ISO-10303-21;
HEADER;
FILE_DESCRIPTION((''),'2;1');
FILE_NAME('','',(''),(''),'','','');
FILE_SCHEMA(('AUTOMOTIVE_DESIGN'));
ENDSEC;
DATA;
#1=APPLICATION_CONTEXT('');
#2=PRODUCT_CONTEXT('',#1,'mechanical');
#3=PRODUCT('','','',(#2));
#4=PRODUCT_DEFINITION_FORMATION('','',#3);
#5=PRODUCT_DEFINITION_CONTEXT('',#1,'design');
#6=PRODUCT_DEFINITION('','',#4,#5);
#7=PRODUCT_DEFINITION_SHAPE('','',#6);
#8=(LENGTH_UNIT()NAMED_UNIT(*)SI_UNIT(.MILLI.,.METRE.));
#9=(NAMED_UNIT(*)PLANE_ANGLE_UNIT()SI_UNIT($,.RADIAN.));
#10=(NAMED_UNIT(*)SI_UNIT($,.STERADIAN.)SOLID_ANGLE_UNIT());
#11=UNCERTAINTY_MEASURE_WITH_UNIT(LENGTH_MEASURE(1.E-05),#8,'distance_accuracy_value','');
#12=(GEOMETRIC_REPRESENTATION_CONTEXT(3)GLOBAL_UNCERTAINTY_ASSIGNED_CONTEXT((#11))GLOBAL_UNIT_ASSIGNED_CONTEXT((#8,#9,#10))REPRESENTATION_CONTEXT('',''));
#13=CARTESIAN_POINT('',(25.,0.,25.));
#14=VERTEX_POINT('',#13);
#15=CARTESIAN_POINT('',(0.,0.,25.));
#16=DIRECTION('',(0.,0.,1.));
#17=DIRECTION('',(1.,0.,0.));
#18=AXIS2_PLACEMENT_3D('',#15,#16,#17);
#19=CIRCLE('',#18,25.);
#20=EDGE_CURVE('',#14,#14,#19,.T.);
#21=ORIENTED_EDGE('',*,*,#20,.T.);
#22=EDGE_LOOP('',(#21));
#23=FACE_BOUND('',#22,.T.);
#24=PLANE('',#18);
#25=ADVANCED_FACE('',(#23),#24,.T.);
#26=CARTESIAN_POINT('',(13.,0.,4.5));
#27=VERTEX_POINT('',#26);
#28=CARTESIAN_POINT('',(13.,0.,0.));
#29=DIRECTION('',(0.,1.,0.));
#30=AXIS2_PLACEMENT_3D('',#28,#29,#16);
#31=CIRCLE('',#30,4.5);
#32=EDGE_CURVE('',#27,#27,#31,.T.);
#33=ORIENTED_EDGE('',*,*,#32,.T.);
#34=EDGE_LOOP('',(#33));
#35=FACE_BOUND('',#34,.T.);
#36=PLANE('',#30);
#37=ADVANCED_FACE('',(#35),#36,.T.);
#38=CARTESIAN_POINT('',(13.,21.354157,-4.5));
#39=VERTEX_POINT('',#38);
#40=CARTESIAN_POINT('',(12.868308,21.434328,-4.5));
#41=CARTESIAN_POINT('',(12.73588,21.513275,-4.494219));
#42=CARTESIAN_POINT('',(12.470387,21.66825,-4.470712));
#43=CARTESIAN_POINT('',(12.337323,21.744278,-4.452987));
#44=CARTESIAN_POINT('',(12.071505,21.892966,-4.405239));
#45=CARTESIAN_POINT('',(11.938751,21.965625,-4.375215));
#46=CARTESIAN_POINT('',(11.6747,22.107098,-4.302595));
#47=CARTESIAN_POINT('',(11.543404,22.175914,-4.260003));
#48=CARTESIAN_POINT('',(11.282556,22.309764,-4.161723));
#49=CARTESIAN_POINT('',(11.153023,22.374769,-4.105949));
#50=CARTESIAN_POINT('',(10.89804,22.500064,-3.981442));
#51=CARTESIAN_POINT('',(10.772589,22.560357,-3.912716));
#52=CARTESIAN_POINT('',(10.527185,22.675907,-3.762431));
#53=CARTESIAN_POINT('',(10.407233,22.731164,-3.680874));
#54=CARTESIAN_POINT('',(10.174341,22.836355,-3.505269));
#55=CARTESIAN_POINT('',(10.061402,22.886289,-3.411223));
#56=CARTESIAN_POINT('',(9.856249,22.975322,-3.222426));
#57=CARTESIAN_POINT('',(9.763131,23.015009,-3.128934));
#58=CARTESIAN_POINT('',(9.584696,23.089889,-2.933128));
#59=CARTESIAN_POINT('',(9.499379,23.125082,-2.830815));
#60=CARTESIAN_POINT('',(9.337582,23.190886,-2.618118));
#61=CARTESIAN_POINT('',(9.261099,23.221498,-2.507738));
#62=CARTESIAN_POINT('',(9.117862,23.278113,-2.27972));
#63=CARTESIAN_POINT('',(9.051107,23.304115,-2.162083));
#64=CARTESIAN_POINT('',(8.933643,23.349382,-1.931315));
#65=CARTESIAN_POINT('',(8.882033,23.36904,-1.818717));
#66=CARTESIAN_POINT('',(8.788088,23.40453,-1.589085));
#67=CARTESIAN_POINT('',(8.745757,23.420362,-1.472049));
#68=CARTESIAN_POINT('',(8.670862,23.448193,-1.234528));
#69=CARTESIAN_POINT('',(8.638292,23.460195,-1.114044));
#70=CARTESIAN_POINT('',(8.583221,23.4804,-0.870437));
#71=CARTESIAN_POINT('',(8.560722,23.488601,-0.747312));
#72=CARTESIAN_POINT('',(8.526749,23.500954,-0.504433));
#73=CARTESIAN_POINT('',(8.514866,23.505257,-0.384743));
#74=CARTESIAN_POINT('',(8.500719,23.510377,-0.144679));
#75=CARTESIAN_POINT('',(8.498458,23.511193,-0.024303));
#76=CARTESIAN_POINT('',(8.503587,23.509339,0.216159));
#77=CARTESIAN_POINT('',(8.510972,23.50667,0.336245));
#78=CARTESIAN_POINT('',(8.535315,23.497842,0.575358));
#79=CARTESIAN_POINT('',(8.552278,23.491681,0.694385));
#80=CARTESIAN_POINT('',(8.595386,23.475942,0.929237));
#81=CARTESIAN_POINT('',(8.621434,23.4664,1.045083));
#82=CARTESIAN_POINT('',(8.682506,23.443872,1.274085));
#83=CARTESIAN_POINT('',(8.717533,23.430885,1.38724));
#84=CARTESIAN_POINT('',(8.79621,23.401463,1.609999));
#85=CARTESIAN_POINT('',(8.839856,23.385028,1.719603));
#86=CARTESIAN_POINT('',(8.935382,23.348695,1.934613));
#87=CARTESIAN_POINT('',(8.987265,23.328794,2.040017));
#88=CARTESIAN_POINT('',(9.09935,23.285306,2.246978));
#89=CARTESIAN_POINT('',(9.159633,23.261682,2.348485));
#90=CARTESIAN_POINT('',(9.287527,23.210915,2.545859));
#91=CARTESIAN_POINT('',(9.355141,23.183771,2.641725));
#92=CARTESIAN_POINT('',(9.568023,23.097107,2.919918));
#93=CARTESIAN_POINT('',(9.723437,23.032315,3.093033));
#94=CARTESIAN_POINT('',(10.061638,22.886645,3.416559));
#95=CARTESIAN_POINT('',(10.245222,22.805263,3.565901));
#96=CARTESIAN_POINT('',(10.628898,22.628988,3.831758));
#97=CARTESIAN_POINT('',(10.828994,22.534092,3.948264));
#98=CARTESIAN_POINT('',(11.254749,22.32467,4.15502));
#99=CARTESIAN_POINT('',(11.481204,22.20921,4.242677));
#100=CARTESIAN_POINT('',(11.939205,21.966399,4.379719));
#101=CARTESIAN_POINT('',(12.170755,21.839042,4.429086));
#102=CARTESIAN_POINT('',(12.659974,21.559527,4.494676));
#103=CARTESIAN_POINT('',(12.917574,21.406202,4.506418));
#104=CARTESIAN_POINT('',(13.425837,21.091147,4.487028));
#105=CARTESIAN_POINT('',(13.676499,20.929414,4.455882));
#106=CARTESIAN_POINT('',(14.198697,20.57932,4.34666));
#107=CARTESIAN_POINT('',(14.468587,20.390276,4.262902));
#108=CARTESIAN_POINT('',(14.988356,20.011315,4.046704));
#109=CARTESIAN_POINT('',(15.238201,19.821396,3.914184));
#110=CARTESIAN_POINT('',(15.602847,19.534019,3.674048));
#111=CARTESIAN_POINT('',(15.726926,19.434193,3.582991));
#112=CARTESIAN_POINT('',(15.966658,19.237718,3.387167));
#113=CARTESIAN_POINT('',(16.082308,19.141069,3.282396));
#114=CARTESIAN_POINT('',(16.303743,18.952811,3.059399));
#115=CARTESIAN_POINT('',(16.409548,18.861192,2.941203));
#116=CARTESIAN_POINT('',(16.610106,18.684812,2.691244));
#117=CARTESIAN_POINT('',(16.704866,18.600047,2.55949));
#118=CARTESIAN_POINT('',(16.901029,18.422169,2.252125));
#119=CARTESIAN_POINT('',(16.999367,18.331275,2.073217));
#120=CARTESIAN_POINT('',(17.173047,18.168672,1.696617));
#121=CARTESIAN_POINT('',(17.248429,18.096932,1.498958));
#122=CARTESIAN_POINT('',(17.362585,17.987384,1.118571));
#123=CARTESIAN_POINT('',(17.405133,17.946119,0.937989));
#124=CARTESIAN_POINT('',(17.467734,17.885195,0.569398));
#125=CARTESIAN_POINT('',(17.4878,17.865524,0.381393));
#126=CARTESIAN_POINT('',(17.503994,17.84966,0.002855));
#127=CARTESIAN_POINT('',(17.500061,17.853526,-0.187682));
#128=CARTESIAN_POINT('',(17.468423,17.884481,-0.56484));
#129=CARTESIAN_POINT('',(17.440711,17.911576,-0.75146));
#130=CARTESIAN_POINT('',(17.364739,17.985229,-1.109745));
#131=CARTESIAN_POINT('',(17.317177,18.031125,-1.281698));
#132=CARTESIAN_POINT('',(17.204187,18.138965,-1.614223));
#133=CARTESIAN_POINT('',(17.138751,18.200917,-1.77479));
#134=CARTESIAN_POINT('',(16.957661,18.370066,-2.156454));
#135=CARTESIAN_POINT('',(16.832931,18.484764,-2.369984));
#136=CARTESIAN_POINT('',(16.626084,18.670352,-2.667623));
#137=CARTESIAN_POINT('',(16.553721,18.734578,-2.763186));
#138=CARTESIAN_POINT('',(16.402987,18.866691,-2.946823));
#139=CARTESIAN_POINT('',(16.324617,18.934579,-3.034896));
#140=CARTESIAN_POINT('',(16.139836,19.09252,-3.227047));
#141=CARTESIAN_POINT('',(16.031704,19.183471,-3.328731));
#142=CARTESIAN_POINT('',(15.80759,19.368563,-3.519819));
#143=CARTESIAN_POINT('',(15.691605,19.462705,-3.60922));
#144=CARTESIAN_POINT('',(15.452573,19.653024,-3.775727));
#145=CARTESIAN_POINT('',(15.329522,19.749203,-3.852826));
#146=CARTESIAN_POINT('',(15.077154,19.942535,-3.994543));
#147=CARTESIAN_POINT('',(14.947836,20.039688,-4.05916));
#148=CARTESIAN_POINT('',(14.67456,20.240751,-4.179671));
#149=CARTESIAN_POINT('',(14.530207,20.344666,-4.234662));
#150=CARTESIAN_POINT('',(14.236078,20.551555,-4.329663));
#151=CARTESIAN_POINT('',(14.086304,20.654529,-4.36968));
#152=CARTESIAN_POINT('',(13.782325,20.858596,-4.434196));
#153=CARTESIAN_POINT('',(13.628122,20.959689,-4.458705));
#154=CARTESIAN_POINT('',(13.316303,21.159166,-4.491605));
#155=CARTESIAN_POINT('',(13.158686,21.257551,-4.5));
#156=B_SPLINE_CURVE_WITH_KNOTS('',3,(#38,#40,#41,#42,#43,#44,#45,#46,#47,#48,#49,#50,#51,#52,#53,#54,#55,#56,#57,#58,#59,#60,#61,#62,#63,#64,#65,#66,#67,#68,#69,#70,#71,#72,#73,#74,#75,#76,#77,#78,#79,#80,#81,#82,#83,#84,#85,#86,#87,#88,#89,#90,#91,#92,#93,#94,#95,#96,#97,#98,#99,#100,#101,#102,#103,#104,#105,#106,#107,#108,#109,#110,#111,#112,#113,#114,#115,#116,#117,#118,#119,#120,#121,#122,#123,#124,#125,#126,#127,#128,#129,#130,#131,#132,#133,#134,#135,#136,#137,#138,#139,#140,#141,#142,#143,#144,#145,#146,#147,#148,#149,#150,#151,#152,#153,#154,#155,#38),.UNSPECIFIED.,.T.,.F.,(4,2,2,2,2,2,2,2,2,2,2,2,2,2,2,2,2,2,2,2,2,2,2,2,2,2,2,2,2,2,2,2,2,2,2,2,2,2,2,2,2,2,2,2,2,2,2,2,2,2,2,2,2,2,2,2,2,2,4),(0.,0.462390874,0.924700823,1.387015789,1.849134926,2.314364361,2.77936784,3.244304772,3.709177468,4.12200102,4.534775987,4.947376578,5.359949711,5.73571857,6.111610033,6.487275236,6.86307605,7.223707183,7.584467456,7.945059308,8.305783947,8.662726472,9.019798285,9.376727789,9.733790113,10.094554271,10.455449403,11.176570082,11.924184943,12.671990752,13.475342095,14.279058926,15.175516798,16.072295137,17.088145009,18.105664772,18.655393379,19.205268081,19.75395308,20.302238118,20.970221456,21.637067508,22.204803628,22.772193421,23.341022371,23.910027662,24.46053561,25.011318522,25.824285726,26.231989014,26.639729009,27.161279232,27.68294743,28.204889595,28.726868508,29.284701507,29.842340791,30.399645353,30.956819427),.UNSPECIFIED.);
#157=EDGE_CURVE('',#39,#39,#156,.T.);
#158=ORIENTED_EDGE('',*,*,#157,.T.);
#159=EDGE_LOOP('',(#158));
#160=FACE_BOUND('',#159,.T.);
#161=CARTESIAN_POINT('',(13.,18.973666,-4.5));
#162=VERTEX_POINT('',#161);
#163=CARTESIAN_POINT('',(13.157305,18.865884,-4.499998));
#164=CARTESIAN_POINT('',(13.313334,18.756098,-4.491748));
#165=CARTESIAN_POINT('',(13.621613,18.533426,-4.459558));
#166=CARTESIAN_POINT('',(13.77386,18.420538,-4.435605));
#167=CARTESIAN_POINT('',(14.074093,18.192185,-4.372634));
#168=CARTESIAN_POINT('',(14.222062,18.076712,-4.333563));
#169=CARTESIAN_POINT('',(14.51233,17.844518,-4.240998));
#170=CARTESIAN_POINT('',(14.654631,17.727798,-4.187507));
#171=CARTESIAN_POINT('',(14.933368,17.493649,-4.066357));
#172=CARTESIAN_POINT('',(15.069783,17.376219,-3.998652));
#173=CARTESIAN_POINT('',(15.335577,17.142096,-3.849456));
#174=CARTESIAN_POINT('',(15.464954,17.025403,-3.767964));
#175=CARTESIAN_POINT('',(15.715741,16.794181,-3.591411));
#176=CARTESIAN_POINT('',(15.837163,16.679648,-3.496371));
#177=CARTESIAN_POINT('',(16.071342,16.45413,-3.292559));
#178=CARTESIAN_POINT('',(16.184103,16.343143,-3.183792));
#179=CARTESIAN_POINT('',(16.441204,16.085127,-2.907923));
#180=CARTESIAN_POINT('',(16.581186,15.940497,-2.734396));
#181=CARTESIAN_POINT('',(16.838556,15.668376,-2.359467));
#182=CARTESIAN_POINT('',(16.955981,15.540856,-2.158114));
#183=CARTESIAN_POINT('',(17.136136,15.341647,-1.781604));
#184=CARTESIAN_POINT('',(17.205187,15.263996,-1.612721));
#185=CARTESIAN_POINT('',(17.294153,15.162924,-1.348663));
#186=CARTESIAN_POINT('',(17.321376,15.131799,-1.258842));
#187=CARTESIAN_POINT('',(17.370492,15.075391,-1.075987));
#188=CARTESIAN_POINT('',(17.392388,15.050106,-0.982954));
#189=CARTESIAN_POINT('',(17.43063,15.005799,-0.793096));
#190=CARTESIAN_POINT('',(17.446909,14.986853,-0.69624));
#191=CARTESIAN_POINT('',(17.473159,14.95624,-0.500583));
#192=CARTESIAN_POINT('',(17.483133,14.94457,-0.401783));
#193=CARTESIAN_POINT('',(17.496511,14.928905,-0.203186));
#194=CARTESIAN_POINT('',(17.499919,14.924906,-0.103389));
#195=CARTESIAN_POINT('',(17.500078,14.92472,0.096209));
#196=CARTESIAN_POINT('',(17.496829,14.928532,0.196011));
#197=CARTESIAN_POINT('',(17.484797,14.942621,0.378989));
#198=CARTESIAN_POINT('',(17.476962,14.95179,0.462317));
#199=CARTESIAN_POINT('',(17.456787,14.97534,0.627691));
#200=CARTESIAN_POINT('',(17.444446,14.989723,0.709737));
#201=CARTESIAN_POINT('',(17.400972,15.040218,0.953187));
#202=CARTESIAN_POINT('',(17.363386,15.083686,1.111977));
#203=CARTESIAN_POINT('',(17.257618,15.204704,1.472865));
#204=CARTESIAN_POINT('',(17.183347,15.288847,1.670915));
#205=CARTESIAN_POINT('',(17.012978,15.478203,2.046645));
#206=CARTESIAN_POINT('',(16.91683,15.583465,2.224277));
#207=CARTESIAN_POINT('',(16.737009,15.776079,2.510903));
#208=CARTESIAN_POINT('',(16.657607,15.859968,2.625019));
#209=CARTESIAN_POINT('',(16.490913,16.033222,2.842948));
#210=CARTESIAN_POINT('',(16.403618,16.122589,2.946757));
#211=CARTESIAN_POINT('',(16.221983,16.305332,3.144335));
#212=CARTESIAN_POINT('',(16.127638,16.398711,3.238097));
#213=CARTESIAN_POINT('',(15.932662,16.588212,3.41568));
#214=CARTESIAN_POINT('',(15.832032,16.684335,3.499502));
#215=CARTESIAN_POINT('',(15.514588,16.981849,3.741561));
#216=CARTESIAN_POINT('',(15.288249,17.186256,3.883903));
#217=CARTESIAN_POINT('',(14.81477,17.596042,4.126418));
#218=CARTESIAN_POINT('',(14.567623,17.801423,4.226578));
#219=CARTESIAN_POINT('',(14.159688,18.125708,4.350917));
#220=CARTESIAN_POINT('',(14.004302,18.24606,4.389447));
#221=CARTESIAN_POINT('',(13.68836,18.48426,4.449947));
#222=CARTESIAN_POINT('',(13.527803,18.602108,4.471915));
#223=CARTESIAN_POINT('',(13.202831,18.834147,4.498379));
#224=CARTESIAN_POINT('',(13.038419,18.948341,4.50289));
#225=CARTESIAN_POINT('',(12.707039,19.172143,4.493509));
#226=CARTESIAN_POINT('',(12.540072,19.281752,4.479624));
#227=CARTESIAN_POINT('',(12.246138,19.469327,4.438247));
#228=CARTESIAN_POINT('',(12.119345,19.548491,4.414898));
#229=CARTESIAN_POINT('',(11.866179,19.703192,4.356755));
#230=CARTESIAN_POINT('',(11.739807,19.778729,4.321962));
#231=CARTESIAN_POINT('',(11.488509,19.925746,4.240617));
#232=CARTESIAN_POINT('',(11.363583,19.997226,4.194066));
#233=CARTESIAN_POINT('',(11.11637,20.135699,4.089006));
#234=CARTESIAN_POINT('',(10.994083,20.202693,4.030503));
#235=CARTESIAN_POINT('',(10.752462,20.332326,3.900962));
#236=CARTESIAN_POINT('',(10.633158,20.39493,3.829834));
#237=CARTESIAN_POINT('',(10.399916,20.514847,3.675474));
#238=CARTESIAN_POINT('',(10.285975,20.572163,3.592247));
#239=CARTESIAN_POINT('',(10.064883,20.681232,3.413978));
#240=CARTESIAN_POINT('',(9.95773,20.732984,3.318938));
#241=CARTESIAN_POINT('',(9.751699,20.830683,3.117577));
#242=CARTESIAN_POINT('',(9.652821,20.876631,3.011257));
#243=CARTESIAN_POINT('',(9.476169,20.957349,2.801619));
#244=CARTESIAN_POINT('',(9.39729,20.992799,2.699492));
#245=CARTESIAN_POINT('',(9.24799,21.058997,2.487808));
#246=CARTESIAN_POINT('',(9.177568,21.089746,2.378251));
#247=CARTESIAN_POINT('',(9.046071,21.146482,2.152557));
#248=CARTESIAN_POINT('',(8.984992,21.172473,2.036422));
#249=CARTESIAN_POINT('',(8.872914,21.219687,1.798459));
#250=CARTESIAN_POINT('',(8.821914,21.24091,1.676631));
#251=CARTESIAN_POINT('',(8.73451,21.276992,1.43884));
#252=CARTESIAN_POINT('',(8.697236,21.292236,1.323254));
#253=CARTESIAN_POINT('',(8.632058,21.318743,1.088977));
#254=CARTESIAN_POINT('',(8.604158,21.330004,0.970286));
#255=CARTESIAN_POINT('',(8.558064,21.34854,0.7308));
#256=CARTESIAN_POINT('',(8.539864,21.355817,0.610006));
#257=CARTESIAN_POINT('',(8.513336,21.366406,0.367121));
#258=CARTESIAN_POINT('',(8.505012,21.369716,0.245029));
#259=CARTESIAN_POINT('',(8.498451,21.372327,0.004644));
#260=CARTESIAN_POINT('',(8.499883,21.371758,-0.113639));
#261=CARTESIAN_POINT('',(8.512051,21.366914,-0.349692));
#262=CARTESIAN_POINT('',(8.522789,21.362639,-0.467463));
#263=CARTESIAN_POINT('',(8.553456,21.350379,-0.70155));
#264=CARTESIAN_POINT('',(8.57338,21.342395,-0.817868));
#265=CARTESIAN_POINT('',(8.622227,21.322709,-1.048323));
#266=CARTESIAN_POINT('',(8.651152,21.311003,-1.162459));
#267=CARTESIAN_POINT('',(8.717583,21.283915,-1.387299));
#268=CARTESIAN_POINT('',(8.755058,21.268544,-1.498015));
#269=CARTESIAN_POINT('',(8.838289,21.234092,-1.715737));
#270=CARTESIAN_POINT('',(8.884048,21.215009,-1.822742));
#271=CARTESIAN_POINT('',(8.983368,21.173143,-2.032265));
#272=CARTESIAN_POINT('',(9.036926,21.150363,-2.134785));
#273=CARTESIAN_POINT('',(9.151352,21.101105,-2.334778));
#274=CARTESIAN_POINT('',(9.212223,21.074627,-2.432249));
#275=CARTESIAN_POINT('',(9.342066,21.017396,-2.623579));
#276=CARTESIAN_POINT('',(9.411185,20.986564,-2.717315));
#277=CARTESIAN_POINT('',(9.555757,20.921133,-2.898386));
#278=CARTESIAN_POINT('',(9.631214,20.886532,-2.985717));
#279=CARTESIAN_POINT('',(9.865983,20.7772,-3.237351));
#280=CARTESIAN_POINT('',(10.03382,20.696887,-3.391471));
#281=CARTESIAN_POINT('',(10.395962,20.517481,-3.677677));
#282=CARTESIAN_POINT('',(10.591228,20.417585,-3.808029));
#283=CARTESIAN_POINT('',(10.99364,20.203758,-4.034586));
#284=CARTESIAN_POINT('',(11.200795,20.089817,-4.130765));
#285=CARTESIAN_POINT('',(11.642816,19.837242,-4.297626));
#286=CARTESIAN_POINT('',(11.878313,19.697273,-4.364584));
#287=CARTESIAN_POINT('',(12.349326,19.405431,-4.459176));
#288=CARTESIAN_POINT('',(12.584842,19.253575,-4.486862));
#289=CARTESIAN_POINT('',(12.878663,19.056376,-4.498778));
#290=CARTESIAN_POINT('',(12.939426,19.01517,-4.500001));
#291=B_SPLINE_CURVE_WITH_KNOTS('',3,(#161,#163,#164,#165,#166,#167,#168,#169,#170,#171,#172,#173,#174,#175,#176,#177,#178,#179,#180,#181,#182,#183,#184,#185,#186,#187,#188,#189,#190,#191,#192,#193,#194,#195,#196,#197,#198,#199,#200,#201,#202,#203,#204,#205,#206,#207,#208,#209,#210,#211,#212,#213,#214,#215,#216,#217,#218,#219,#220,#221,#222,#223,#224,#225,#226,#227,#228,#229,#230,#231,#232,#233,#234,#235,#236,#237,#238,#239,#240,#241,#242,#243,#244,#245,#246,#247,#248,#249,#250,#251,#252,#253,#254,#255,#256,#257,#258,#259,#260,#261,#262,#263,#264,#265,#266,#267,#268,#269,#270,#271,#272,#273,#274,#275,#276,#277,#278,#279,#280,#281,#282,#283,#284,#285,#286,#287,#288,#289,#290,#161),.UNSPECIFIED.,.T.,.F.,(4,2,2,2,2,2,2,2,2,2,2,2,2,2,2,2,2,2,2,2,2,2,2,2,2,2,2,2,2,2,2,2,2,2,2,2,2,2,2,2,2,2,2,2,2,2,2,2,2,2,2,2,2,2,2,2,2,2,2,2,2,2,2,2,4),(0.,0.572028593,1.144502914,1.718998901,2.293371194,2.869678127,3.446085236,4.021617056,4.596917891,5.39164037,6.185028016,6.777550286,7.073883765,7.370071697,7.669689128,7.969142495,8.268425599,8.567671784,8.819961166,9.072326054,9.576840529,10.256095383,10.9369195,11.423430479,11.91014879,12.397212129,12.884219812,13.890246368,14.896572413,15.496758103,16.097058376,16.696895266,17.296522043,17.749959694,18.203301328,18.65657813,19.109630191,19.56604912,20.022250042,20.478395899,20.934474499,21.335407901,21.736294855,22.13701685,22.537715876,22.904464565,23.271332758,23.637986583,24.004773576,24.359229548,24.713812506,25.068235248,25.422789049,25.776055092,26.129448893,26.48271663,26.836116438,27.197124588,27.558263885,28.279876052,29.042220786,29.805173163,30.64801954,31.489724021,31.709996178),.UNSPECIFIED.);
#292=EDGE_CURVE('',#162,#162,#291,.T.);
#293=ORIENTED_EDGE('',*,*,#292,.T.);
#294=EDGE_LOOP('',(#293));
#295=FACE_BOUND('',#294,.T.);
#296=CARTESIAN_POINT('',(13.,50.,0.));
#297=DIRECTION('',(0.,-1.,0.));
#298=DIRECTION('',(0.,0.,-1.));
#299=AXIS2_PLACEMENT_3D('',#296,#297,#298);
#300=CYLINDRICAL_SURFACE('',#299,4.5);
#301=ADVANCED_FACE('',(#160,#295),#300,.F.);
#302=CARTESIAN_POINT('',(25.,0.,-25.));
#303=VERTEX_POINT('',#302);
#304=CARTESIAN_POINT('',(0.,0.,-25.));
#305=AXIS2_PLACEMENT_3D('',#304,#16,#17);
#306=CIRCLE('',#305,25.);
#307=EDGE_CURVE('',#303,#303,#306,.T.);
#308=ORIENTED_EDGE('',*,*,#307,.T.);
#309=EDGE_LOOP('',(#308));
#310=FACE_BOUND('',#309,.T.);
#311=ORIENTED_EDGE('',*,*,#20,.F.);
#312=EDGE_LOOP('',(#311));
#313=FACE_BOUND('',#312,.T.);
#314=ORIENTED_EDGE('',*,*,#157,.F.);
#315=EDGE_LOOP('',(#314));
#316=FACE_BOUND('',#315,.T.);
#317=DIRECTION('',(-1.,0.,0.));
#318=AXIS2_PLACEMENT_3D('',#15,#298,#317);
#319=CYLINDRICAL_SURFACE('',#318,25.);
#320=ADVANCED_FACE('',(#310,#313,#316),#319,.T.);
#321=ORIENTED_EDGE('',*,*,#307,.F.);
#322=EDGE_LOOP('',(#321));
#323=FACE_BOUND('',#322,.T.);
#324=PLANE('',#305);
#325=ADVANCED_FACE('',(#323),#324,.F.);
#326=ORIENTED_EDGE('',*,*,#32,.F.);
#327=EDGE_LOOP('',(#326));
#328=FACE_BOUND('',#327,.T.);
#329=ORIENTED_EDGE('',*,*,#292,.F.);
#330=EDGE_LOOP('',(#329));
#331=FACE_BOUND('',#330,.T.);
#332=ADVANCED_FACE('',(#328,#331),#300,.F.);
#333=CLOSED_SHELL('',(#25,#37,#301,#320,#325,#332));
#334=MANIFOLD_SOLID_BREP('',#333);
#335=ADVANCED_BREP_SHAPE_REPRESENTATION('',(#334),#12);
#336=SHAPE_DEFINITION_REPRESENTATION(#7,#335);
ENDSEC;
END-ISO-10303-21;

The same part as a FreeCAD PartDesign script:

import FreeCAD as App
import Part
import Sketcher

V = App.Vector
Q = App.Units.Quantity

doc = App.newDocument("Part")
body = doc.addObject("PartDesign::Body", "Body")

sketch1 = body.newObject("Sketcher::SketchObject", "Sketch")
sketch1.AttachmentSupport = (doc.getObject("XY_Plane"), [""])
sketch1.MapMode = "FlatFace"
sketch1.addGeometry(Part.Circle(V(0, 0, 0), V(0, 0, 1), 25), False)
sketch1.addConstraint([
    Sketcher.Constraint("Coincident", 0, 3, -1, 1),
    Sketcher.Constraint("Diameter", 0, Q("50 mm")),
])
pad1 = body.newObject("PartDesign::Pad", "Pad")
pad1.Profile = sketch1
pad1.Length = 50
pad1.Midplane = True

sketch2 = body.newObject("Sketcher::SketchObject", "Sketch001")
sketch2.AttachmentSupport = (doc.getObject("XZ_Plane"), [""])
sketch2.MapMode = "FlatFace"
sketch2.addGeometry(Part.Circle(V(13, 0, 0), V(0, 0, 1), 4.5), False)
sketch2.addConstraint([
    Sketcher.Constraint("PointOnObject", 0, 3, -1),
    Sketcher.Constraint("Diameter", 0, Q("9 mm")),
    Sketcher.Constraint("DistanceX", -1, 1, 0, 3, Q("13 mm")),
])
pocket1 = body.newObject("PartDesign::Pocket", "Pocket")
pocket1.Profile = sketch2
pocket1.Length = 50

doc.recompute()
